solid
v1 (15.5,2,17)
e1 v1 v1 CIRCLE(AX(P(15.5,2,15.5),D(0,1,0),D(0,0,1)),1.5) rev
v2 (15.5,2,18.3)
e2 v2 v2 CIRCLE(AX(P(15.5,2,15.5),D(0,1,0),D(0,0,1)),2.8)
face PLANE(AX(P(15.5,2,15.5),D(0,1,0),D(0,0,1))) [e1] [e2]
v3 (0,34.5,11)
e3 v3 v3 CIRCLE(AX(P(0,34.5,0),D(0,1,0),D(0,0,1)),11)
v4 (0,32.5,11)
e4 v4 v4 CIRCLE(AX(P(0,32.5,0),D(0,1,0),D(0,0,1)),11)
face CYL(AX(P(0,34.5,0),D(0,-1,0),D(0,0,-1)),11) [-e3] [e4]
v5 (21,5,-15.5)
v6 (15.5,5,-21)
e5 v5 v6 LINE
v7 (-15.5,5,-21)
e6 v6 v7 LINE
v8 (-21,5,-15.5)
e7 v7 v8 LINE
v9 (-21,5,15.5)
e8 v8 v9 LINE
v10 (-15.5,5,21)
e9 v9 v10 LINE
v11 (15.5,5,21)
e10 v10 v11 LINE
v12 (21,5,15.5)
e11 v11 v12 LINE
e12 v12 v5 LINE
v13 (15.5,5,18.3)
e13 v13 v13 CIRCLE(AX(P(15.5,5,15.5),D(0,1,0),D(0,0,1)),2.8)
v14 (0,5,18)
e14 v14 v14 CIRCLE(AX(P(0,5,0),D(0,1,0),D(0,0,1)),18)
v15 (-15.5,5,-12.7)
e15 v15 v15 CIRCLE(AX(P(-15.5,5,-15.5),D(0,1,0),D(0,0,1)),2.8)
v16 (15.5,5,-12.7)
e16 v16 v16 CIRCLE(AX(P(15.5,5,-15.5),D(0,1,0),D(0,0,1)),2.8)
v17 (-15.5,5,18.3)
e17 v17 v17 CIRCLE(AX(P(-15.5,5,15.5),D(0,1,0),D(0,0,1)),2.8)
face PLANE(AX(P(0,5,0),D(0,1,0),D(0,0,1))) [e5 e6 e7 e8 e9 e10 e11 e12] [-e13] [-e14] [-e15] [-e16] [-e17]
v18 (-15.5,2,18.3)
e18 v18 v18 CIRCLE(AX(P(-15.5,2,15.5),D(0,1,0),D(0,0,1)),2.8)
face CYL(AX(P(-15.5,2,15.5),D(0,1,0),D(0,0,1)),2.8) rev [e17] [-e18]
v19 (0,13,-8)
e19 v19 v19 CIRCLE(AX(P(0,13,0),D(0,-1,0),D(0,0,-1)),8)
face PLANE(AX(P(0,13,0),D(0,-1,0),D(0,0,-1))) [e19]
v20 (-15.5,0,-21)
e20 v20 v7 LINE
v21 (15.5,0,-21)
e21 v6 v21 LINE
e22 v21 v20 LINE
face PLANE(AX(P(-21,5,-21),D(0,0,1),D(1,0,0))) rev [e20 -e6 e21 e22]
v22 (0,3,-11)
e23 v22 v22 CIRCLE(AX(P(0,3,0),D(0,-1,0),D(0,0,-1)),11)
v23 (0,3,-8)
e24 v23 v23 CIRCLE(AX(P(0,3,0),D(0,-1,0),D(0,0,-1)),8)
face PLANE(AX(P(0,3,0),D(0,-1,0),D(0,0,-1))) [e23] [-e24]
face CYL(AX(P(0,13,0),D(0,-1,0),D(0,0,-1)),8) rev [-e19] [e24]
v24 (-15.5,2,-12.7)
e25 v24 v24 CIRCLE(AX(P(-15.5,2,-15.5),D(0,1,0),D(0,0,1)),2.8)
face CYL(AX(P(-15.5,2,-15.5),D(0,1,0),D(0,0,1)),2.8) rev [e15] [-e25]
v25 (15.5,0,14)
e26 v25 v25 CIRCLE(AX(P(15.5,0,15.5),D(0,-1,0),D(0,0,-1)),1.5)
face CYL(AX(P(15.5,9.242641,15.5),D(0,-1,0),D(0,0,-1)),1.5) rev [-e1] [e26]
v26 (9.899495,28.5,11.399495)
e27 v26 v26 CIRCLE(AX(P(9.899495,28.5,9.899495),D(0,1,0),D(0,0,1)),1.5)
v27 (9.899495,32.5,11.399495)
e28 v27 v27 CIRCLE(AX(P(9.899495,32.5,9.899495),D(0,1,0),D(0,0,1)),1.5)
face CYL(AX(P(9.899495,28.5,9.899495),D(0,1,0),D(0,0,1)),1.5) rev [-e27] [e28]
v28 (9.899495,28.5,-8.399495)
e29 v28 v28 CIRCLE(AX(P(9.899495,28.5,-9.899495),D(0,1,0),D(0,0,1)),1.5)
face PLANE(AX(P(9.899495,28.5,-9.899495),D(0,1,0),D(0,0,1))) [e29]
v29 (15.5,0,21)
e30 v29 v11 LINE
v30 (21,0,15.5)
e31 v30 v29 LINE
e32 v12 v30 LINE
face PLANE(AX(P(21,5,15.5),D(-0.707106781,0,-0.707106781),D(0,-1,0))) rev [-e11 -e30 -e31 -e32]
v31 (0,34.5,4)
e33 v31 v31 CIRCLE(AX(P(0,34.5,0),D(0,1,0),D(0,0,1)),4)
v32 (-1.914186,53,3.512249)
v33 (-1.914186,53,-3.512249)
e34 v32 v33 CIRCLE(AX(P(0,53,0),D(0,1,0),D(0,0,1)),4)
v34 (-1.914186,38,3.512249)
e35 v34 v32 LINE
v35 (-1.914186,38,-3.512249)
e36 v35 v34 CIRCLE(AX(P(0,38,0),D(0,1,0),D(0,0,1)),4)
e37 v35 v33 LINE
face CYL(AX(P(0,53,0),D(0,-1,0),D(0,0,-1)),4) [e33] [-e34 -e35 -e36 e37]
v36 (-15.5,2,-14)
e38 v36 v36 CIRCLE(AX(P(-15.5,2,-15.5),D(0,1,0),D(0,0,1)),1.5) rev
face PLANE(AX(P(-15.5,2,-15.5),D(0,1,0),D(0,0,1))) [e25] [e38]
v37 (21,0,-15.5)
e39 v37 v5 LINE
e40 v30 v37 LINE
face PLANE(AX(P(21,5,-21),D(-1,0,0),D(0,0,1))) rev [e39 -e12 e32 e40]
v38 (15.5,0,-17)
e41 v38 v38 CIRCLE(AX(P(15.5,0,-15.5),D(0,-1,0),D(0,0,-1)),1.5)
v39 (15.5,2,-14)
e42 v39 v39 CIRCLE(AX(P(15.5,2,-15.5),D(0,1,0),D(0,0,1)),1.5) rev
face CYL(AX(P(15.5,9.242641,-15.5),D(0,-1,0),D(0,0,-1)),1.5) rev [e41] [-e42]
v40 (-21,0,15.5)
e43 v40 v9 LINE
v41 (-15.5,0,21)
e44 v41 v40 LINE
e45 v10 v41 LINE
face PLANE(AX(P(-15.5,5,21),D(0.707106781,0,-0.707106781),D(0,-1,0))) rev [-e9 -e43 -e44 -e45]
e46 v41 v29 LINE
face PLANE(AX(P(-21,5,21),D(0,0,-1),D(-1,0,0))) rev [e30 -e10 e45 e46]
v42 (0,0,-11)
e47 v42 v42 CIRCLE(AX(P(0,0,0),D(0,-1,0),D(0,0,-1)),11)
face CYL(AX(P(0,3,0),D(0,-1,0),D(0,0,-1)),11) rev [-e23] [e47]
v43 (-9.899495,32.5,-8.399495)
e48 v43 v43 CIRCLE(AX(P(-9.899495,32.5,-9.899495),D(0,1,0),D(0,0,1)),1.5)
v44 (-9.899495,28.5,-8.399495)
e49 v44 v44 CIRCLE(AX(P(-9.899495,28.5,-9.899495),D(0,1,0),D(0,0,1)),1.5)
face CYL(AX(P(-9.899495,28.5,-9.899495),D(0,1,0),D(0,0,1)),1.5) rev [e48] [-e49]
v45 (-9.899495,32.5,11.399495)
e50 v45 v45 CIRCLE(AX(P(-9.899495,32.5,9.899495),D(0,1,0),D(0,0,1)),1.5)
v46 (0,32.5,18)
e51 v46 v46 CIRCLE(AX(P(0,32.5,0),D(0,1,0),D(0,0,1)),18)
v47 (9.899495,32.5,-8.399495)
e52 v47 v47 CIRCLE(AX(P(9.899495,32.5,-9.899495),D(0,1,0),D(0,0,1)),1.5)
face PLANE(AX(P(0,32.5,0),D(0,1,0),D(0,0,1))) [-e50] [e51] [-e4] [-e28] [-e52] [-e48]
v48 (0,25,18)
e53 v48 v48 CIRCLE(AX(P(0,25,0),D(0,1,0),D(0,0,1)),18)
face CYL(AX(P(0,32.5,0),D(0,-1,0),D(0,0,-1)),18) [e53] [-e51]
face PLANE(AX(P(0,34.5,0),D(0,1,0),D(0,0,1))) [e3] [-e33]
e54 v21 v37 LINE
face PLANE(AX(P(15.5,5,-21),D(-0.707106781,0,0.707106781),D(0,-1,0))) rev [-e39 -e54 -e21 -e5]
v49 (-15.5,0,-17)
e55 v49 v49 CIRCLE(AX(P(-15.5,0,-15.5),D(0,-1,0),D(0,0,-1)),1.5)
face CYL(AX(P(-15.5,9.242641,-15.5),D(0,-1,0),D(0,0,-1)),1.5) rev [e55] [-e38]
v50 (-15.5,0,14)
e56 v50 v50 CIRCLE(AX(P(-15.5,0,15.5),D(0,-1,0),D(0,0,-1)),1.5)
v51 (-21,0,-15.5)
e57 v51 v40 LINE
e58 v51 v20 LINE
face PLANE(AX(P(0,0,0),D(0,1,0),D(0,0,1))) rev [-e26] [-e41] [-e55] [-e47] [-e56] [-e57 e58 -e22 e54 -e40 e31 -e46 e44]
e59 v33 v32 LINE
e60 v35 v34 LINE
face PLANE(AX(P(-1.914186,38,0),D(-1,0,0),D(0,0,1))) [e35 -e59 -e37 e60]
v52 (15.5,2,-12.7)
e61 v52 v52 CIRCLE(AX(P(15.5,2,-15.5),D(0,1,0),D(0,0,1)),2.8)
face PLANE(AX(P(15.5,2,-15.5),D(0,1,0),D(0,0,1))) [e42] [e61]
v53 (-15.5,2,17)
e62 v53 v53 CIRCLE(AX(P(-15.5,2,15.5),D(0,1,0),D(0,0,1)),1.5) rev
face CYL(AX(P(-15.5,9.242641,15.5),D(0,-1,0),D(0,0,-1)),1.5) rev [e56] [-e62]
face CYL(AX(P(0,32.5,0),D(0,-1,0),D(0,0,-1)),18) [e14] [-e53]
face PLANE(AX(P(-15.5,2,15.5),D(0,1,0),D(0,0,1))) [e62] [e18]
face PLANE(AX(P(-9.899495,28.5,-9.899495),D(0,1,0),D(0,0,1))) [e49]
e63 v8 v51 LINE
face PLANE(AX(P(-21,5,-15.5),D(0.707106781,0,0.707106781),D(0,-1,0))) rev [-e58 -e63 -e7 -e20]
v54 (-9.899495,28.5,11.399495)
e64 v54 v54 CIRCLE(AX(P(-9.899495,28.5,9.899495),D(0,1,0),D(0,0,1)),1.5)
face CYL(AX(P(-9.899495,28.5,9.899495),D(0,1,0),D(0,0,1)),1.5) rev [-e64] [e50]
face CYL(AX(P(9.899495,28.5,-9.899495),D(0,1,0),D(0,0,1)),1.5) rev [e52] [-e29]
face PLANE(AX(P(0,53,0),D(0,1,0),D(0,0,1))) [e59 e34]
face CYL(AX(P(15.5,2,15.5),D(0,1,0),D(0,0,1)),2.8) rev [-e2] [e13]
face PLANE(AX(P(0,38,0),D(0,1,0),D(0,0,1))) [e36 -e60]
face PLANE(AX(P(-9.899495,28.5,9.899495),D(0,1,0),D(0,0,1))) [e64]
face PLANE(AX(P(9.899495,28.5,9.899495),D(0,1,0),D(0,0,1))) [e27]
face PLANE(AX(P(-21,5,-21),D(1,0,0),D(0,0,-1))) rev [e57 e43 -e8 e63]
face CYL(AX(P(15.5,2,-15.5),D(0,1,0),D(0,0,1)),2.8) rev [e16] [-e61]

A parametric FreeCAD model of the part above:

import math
import FreeCAD as App
import Part
import Sketcher
from FreeCAD import Vector
Q = App.Units.Quantity


def edges_at(feature, points):
    """Names of the edges that pass closest to the given points."""
    edges = feature.Shape.Edges
    near = lambda p: min(range(len(edges)), key=lambda i: edges[i].distToShape(Part.Vertex(*p))[0])
    return sorted({f"Edge{near(p) + 1}" for p in points})


def add_polygon(sketch, points):
    """Adds a closed chain of lines whose ends are joined by coincident constraints."""
    first, n = sketch.GeometryCount, len(points)
    for a, b in zip(points, points[1:] + points[:1]):
        sketch.addGeometry(Part.LineSegment(App.Vector(*a, 0), App.Vector(*b, 0)), False)
    for i in range(n):
        sketch.addConstraint(Sketcher.Constraint("Coincident", first + i, 2, first + (i + 1) % n, 1))

doc = App.newDocument("Part")
body = doc.addObject("PartDesign::Body", "Body")

sketch1 = body.newObject("Sketcher::SketchObject", "Sketch")
sketch1.AttachmentSupport = (doc.getObject("XZ_Plane"), [""])
sketch1.MapMode = "FlatFace"
add_polygon(sketch1, [(-21, -21), (-21, 21), (21, 21), (21, -21)])
sketch1.addConstraint(Sketcher.Constraint("Vertical", 0))
sketch1.addConstraint(Sketcher.Constraint("Horizontal", 1))
sketch1.addConstraint(Sketcher.Constraint("Vertical", 2))
sketch1.addConstraint(Sketcher.Constraint("Horizontal", 3))
sketch1.addConstraint(Sketcher.Constraint("Symmetric", 0, 2, 2, 2, -1, 1))
sketch1.addConstraint(Sketcher.Constraint("Equal", 3, 0))
sketch1.addConstraint(Sketcher.Constraint("DistanceX", 1, 1, 1, 2, Q("42 mm")))
pad1 = body.newObject("PartDesign::Pad", "Pad")
pad1.Profile = sketch1
pad1.Length = 5
pad1.Reversed = True
doc.recompute()

chamfer = body.newObject("PartDesign::Chamfer", "Chamfer")
chamfer.Base = (pad1, edges_at(pad1, [
    (21, 2.5, 21),
    (-21, 2.5, 21),
    (-21, 2.5, -21),
    (21, 2.5, -21),
]))
chamfer.Size = 5.5

sketch2 = body.newObject("Sketcher::SketchObject", "Sketch001")
sketch2.AttachmentSupport = (doc.getObject("XZ_Plane"), [""])
sketch2.MapMode = "FlatFace"
sketch2.addGeometry(Part.Circle(Vector(-15.5, 15.5, 0), Vector(0, 0, 1), 1.5), False)
sketch2.addGeometry(Part.Circle(Vector(15.5, 15.5, 0), Vector(0, 0, 1), 1.5), False)
sketch2.addGeometry(Part.Circle(Vector(15.5, -15.5, 0), Vector(0, 0, 1), 1.5), False)
sketch2.addGeometry(Part.Circle(Vector(-15.5, -15.5, 0), Vector(0, 0, 1), 1.5), False)
sketch2.addConstraint(Sketcher.Constraint("Equal", 0, 1))
sketch2.addConstraint(Sketcher.Constraint("Equal", 1, 2))
sketch2.addConstraint(Sketcher.Constraint("Equal", 2, 3))
sketch2.addConstraint(Sketcher.Constraint("Symmetric", 0, 3, 2, 3, -1, 1))
sketch2.addConstraint(Sketcher.Constraint("Symmetric", 1, 3, 3, 3, -1, 1))
sketch2.addConstraint(Sketcher.Constraint("Symmetric", 0, 3, 1, 3, -2))
sketch2.addConstraint(Sketcher.Constraint("Diameter", 0, Q("3 mm")))
sketch2.addConstraint(Sketcher.Constraint("DistanceX", 0, 3, 1, 3, Q("31 mm")))
sketch2.addConstraint(Sketcher.Constraint("DistanceY", 2, 3, 1, 3, Q("31 mm")))
pocket1 = body.newObject("PartDesign::Pocket", "Pocket")
pocket1.Profile = sketch2
pocket1.Length = 5

sketch3 = body.newObject("Sketcher::SketchObject", "Sketch002")
sketch3.AttachmentSupport = (doc.getObject("XZ_Plane"), [""])
sketch3.MapMode = "FlatFace"
sketch3.AttachmentOffset = App.Placement(Vector(0, 0, -5), App.Rotation())
sketch3.addGeometry(Part.Circle(Vector(0, 0, 0), Vector(0, 0, 1), 18), False)
sketch3.addConstraint(Sketcher.Constraint("Coincident", 0, 3, -1, 1))
sketch3.addConstraint(Sketcher.Constraint("Diameter", 0, Q("36 mm")))
pad2 = body.newObject("PartDesign::Pad", "Pad001")
pad2.Profile = sketch3
pad2.Length = 27.5
pad2.Reversed = True

sketch4 = body.newObject("Sketcher::SketchObject", "Sketch003")
sketch4.AttachmentSupport = (doc.getObject("XZ_Plane"), [""])
sketch4.MapMode = "FlatFace"
sketch4.AttachmentOffset = App.Placement(Vector(0, 0, -32.5), App.Rotation())
sketch4.addGeometry(Part.Circle(Vector(-9.9, -9.9, 0), Vector(0, 0, 1), 1.5), False)
sketch4.addGeometry(Part.Circle(Vector(9.9, -9.9, 0), Vector(0, 0, 1), 1.5), False)
sketch4.addGeometry(Part.Circle(Vector(9.9, 9.9, 0), Vector(0, 0, 1), 1.5), False)
sketch4.addGeometry(Part.Circle(Vector(-9.9, 9.9, 0), Vector(0, 0, 1), 1.5), False)
sketch4.addConstraint(Sketcher.Constraint("Equal", 0, 1))
sketch4.addConstraint(Sketcher.Constraint("Equal", 1, 2))
sketch4.addConstraint(Sketcher.Constraint("Equal", 2, 3))
sketch4.addConstraint(Sketcher.Constraint("Symmetric", 0, 3, 2, 3, -1, 1))
sketch4.addConstraint(Sketcher.Constraint("Symmetric", 1, 3, 3, 3, -1, 1))
sketch4.addConstraint(Sketcher.Constraint("Symmetric", 0, 3, 1, 3, -2))
sketch4.addConstraint(Sketcher.Constraint("Diameter", 0, Q("3 mm")))
sketch4.addConstraint(Sketcher.Constraint("DistanceX", 0, 3, 1, 3, Q("19.79899 mm")))
sketch4.addConstraint(Sketcher.Constraint("DistanceY", 1, 3, 2, 3, Q("19.79899 mm")))
pocket2 = body.newObject("PartDesign::Pocket", "Pocket001")
pocket2.Profile = sketch4
pocket2.Length = 4
pocket2.Reversed = True

sketch5 = body.newObject("Sketcher::SketchObject", "Sketch004")
sketch5.AttachmentSupport = (doc.getObject("XZ_Plane"), [""])
sketch5.MapMode = "FlatFace"
sketch5.AttachmentOffset = App.Placement(Vector(0, 0, -32.5), App.Rotation())
sketch5.addGeometry(Part.Circle(Vector(0, 0, 0), Vector(0, 0, 1), 11), False)
sketch5.addConstraint(Sketcher.Constraint("Coincident", 0, 3, -1, 1))
sketch5.addConstraint(Sketcher.Constraint("Diameter", 0, Q("22 mm")))
pad3 = body.newObject("PartDesign::Pad", "Pad002")
pad3.Profile = sketch5
pad3.Length = 2
pad3.Reversed = True

sketch6 = body.newObject("Sketcher::SketchObject", "Sketch005")
sketch6.AttachmentSupport = (doc.getObject("XZ_Plane"), [""])
sketch6.MapMode = "FlatFace"
sketch6.AttachmentOffset = App.Placement(Vector(0, 0, -34.5), App.Rotation())
sketch6.addGeometry(Part.Circle(Vector(0, 0, 0), Vector(0, 0, 1), 4), False)
sketch6.addConstraint(Sketcher.Constraint("Coincident", 0, 3, -1, 1))
sketch6.addConstraint(Sketcher.Constraint("Diameter", 0, Q("8 mm")))
pad4 = body.newObject("PartDesign::Pad", "Pad003")
pad4.Profile = sketch6
pad4.Length = 18.5
pad4.Reversed = True

sketch7 = body.newObject("Sketcher::SketchObject", "Sketch006")
sketch7.AttachmentSupport = (doc.getObject("XZ_Plane"), [""])
sketch7.MapMode = "FlatFace"
sketch7.addGeometry(Part.Circle(Vector(0, 0, 0), Vector(0, 0, 1), 11), False)
sketch7.addConstraint(Sketcher.Constraint("Coincident", 0, 3, -1, 1))
sketch7.addConstraint(Sketcher.Constraint("Diameter", 0, Q("22 mm")))
pocket3 = body.newObject("PartDesign::Pocket", "Pocket002")
pocket3.Profile = sketch7
pocket3.Length = 3

sketch8 = body.newObject("Sketcher::SketchObject", "Sketch007")
sketch8.AttachmentSupport = (doc.getObject("XZ_Plane"), [""])
sketch8.MapMode = "FlatFace"
sketch8.AttachmentOffset = App.Placement(Vector(0, 0, -3), App.Rotation())
sketch8.addGeometry(Part.Circle(Vector(0, 0, 0), Vector(0, 0, 1), 8), False)
sketch8.addConstraint(Sketcher.Constraint("Coincident", 0, 3, -1, 1))
sketch8.addConstraint(Sketcher.Constraint("Diameter", 0, Q("16 mm")))
pocket4 = body.newObject("PartDesign::Pocket", "Pocket003")
pocket4.Profile = sketch8
pocket4.Length = 10

sketch9 = body.newObject("Sketcher::SketchObject", "Sketch008")
sketch9.AttachmentSupport = (doc.getObject("XZ_Plane"), [""])
sketch9.MapMode = "FlatFace"
sketch9.AttachmentOffset = App.Placement(Vector(0, 0, -38), App.Rotation())
sketch9.addGeometry(Part.LineSegment(Vector(-1.9, 3.5, 0), Vector(-1.9, -3.5, 0)), False)
sketch9.addGeometry(Part.ArcOfCircle(Part.Circle(Vector(0, 0, 0), Vector(0, 0, 1), 4), math.radians(119), math.radians(241)), False)
sketch9.addConstraint(Sketcher.Constraint("Coincident", 0, 1, 1, 1))
sketch9.addConstraint(Sketcher.Constraint("Coincident", 1, 2, 0, 2))
sketch9.addConstraint(Sketcher.Constraint("Vertical", 0))
sketch9.addConstraint(Sketcher.Constraint("Coincident", 1, 3, -1, 1))
sketch9.addConstraint(Sketcher.Constraint("Radius", 1, Q("4 mm")))
sketch9.addConstraint(Sketcher.Constraint("DistanceY", 0, 2, 0, 1, Q("7.024498 mm")))
pocket5 = body.newObject("PartDesign::Pocket", "Pocket004")
pocket5.Profile = sketch9
pocket5.Length = 15

sketch10 = body.newObject("Sketcher::SketchObject", "Sketch009")
sketch10.AttachmentSupport = (doc.getObject("XZ_Plane"), [""])
sketch10.MapMode = "FlatFace"
sketch10.AttachmentOffset = App.Placement(Vector(0, 0, -5), App.Rotation())
sketch10.addGeometry(Part.Circle(Vector(-15.5, -15.5, 0), Vector(0, 0, 1), 2.8), False)
sketch10.addGeometry(Part.Circle(Vector(15.5, -15.5, 0), Vector(0, 0, 1), 2.8), False)
sketch10.addGeometry(Part.Circle(Vector(-15.5, 15.5, 0), Vector(0, 0, 1), 2.8), False)
sketch10.addGeometry(Part.Circle(Vector(15.5, 15.5, 0), Vector(0, 0, 1), 2.8), False)
sketch10.addConstraint(Sketcher.Constraint("Equal", 0, 1))
sketch10.addConstraint(Sketcher.Constraint("Equal", 1, 2))
sketch10.addConstraint(Sketcher.Constraint("Equal", 2, 3))
sketch10.addConstraint(Sketcher.Constraint("Symmetric", 1, 3, 2, 3, -1, 1))
sketch10.addConstraint(Sketcher.Constraint("Symmetric", 0, 3, 3, 3, -1, 1))
sketch10.addConstraint(Sketcher.Constraint("Symmetric", 0, 3, 1, 3, -2))
sketch10.addConstraint(Sketcher.Constraint("Diameter", 0, Q("5.6 mm")))
sketch10.addConstraint(Sketcher.Constraint("DistanceX", 0, 3, 1, 3, Q("31 mm")))
sketch10.addConstraint(Sketcher.Constraint("DistanceY", 0, 3, 2, 3, Q("31 mm")))
pocket6 = body.newObject("PartDesign::Pocket", "Pocket005")
pocket6.Profile = sketch10
pocket6.Length = 3
pocket6.Reversed = True

doc.recompute()
